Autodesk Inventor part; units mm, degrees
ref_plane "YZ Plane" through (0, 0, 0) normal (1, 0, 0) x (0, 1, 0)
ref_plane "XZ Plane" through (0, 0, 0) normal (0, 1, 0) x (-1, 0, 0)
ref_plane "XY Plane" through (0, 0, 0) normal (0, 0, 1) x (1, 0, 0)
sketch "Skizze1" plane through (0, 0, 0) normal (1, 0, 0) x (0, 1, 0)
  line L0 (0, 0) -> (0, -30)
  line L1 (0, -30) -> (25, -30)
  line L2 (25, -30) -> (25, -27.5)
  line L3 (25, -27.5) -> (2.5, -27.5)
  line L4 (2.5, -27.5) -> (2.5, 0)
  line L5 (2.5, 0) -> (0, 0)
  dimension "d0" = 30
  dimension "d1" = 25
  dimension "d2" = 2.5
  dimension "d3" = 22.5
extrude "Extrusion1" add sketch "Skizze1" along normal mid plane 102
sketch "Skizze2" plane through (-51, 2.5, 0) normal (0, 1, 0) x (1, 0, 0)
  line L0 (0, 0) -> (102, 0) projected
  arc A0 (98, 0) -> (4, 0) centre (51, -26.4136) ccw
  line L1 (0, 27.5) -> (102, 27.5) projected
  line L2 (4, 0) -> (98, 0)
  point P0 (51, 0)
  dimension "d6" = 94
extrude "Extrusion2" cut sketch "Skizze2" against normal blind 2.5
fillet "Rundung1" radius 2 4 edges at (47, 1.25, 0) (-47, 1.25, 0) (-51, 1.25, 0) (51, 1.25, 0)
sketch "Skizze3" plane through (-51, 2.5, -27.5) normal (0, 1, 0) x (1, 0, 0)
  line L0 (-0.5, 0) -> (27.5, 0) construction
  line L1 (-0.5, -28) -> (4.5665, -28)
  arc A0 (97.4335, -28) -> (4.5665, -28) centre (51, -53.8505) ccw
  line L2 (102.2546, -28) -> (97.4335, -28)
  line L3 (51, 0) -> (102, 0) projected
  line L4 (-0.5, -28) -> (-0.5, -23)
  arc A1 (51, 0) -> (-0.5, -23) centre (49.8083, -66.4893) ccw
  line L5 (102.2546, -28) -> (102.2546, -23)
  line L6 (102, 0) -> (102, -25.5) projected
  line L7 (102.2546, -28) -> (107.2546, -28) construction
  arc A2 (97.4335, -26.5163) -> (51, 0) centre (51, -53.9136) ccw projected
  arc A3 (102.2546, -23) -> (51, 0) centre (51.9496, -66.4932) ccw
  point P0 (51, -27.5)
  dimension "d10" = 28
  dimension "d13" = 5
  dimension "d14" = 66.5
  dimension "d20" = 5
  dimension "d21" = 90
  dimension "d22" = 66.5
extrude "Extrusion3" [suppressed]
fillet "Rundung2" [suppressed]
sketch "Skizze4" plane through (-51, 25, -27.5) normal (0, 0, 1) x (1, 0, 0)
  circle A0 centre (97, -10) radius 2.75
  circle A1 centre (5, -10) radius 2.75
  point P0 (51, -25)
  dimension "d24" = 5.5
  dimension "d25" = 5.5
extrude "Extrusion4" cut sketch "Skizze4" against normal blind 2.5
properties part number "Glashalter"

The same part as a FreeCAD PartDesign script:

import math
import FreeCAD as App
import Part
import Sketcher

V = App.Vector


def edges_at(feature, points):
    """Names of the edges that pass closest to the given points."""
    edges = feature.Shape.Edges
    near = lambda p: min(range(len(edges)), key=lambda i: edges[i].distToShape(Part.Vertex(*p))[0])
    return sorted({f"Edge{near(p) + 1}" for p in points})

doc = App.newDocument("Part")
body = doc.addObject("PartDesign::Body", "Body")

# Sketch on YZ plane
sketch1 = doc.addObject("Sketcher::SketchObject", "Sketch")
body.addObject(sketch1)
sketch1.AttachmentSupport = (doc.YZ_Plane, [""])
sketch1.MapMode = "FlatFace"
sketch1.addGeometry([
    Part.LineSegment(V(2.5, 0, 0), V(0, 0, 0)),  # 0
    Part.LineSegment(V(0, 0, 0), V(0, -30, 0)),  # 1
    Part.LineSegment(V(0, -30, 0), V(25, -30, 0)),  # 2
    Part.LineSegment(V(25, -30, 0), V(25, -27.5, 0)),  # 3
    Part.LineSegment(V(25, -27.5, 0), V(2.5, -27.5, 0)),  # 4
    Part.LineSegment(V(2.5, -27.5, 0), V(2.5, 0, 0)),  # 5
], False)
sketch1.addConstraint([
    Sketcher.Constraint("Coincident", 0, 2, 1, 1),
    Sketcher.Constraint("Coincident", 1, 2, 2, 1),
    Sketcher.Constraint("Coincident", 2, 2, 3, 1),
    Sketcher.Constraint("Coincident", 3, 2, 4, 1),
    Sketcher.Constraint("Coincident", 4, 2, 5, 1),
    Sketcher.Constraint("Coincident", 5, 2, 0, 1),
    Sketcher.Constraint("Horizontal", 0),
    Sketcher.Constraint("Vertical", 1),
    Sketcher.Constraint("Horizontal", 2),
    Sketcher.Constraint("Vertical", 3),
    Sketcher.Constraint("Horizontal", 4),
    Sketcher.Constraint("Vertical", 5),
    Sketcher.Constraint("Coincident", 0, 2, -1, 1),
    Sketcher.Constraint("Equal", 0, 3),
    Sketcher.Constraint("DistanceX", 2, 1, 2, 2, 25.0),
    Sketcher.Constraint("DistanceY", 1, 2, 1, 1, 30.0),
    Sketcher.Constraint("DistanceX", 0, 2, 0, 1, 2.5),
])
pad1 = doc.addObject("PartDesign::Pad", "Pad")
body.addObject(pad1)
pad1.Profile = sketch1
pad1.Length = 102
pad1.Midplane = True

# Sketch on XZ plane
sketch2 = doc.addObject("Sketcher::SketchObject", "Sketch001")
body.addObject(sketch2)
sketch2.AttachmentSupport = (doc.XZ_Plane, [""])
sketch2.MapMode = "FlatFace"
sketch2.AttachmentOffset = App.Placement(V(0, 0, -2.5), App.Rotation())
sketch2.addGeometry([
    Part.ArcOfCircle(Part.Circle(V(0, 26, 0), V(0, 0, 1), 54), math.radians(-151), math.radians(-29)),
    Part.LineSegment(V(-47, 0, 0), V(47, 0, 0)),
], False)
sketch2.addConstraint([
    Sketcher.Constraint("Coincident", 0, 1, 1, 1),
    Sketcher.Constraint("Coincident", 1, 2, 0, 2),
    Sketcher.Constraint("Horizontal", 1),
    Sketcher.Constraint("Symmetric", 0, 1, 1, 2, -1, 1),
    Sketcher.Constraint("DistanceX", 1, 1, 1, 2, 94.0),
    Sketcher.Constraint("Radius", 0, 53.9136),
])
pocket1 = doc.addObject("PartDesign::Pocket", "Pocket")
body.addObject(pocket1)
pocket1.Profile = sketch2
pocket1.Length = 2.5
pocket1.Reversed = True
doc.recompute()

fillet = doc.addObject("PartDesign::Fillet", "Fillet")
body.addObject(fillet)
fillet.Base = (pocket1, edges_at(pocket1, [
    (47, 1.25, 0),
    (-47, 1.25, 0),
    (-51, 1.25, 0),
    (51, 1.25, 0),
]))
fillet.Radius = 2

# Sketch on XY plane
sketch3 = doc.addObject("Sketcher::SketchObject", "Sketch002")
body.addObject(sketch3)
sketch3.AttachmentSupport = (doc.XY_Plane, [""])
sketch3.MapMode = "FlatFace"
sketch3.AttachmentOffset = App.Placement(V(0, 0, -27.5), App.Rotation())
sketch3.addGeometry([
    Part.Circle(V(46, 15, 0), V(0, 0, 1), 2.8),
    Part.Circle(V(-46, 15, 0), V(0, 0, 1), 2.8),
], False)
sketch3.addConstraint([
    Sketcher.Constraint("Equal", 0, 1),
    Sketcher.Constraint("Symmetric", 0, 3, 1, 3, -2),
    Sketcher.Constraint("Diameter", 0, 5.5),
    Sketcher.Constraint("DistanceX", -1, 1, 0, 3, 46.0),
    Sketcher.Constraint("DistanceY", -1, 1, 0, 3, 15.0),
])
pocket2 = doc.addObject("PartDesign::Pocket", "Pocket001")
body.addObject(pocket2)
pocket2.Profile = sketch3
pocket2.Length = 2.5

doc.recompute()
